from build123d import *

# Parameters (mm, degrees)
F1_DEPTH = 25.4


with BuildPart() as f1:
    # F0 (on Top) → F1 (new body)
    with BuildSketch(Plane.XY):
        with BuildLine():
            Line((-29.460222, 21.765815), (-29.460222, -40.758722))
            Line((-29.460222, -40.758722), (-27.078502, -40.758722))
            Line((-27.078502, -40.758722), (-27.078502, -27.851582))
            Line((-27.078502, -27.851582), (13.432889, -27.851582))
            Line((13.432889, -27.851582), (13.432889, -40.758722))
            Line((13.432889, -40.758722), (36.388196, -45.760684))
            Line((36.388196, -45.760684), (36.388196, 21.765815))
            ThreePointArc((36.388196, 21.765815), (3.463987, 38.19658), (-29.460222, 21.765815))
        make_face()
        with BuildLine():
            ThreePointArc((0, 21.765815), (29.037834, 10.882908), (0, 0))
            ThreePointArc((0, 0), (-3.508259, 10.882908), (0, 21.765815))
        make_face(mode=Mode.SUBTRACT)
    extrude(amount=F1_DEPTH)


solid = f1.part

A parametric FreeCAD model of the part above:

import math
import FreeCAD as App
import Part
import Sketcher

V = App.Vector
Q = App.Units.Quantity

doc = App.newDocument("Part")
params = doc.addObject("Spreadsheet::Sheet", "Params")
for row, (alias, value) in enumerate([
    ("pad1_length", "1 in"),
], start=1):
    params.set(f"A{row}", alias)
    params.set(f"B{row}", "=" + value)
    params.setAlias(f"B{row}", alias)

body = doc.addObject("PartDesign::Body", "Body")

# Sketch on XY plane
sketch1 = doc.addObject("Sketcher::SketchObject", "Sketch")
body.addObject(sketch1)
sketch1.AttachmentSupport = (doc.XY_Plane, [""])
sketch1.MapMode = "FlatFace"
sketch1.addGeometry(Part.LineSegment(V(-29.5, 21.8, 0), V(-29.5, -40.8, 0)), False)
sketch1.addGeometry(Part.LineSegment(V(-29.5, -40.8, 0), V(-27.1, -40.8, 0)), False)
sketch1.addGeometry(Part.LineSegment(V(-27.1, -40.8, 0), V(-27.1, -27.9, 0)), False)
sketch1.addGeometry(Part.LineSegment(V(-27.1, -27.9, 0), V(13.4, -27.9, 0)), False)
sketch1.addGeometry(Part.LineSegment(V(13.4, -27.9, 0), V(13.4, -40.8, 0)), False)
sketch1.addGeometry(Part.LineSegment(V(13.4, -40.8, 0), V(36.4, -45.8, 0)), False)
sketch1.addGeometry(Part.LineSegment(V(36.4, -45.8, 0), V(36.4, 21.8, 0)), False)
sketch1.addGeometry(Part.ArcOfCircle(Part.Circle(V(3.5, -3, 0), V(0, 0, 1), 41.2), math.radians(37), math.radians(143)), False)
sketch1.addGeometry(Part.ArcOfCircle(Part.Circle(V(15.1, 10.9, 0), V(0, 0, 1), 18.6), math.radians(144), math.radians(216)), False)
sketch1.addGeometry(Part.ArcOfCircle(Part.Circle(V(12.5, 10.9, 0), V(0, 0, 1), 16.6), math.radians(-139), math.radians(139)), False)
sketch1.addConstraint(Sketcher.Constraint("Coincident", 0, 2, 1, 1))
sketch1.addConstraint(Sketcher.Constraint("Coincident", 1, 2, 2, 1))
sketch1.addConstraint(Sketcher.Constraint("Coincident", 2, 2, 3, 1))
sketch1.addConstraint(Sketcher.Constraint("Coincident", 3, 2, 4, 1))
sketch1.addConstraint(Sketcher.Constraint("Coincident", 4, 2, 5, 1))
sketch1.addConstraint(Sketcher.Constraint("Coincident", 5, 2, 6, 1))
sketch1.addConstraint(Sketcher.Constraint("Coincident", 6, 2, 7, 1))
sketch1.addConstraint(Sketcher.Constraint("Coincident", 7, 2, 0, 1))
sketch1.addConstraint(Sketcher.Constraint("Coincident", 8, 1, 9, 2))
sketch1.addConstraint(Sketcher.Constraint("Coincident", 9, 1, 8, 2))
sketch1.addConstraint(Sketcher.Constraint("Vertical", 0))
sketch1.addConstraint(Sketcher.Constraint("Horizontal", 1))
sketch1.addConstraint(Sketcher.Constraint("Vertical", 2))
sketch1.addConstraint(Sketcher.Constraint("Horizontal", 3))
sketch1.addConstraint(Sketcher.Constraint("Vertical", 4))
sketch1.addConstraint(Sketcher.Constraint("Vertical", 6))
sketch1.addConstraint(Sketcher.Constraint("Coincident", 9, 1, -1, 1))
sketch1.addConstraint(Sketcher.Constraint("PointOnObject", 8, 1, -2))
sketch1.addConstraint(Sketcher.Constraint("Horizontal", 1, 2, 4, 2))
sketch1.addConstraint(Sketcher.Constraint("Horizontal", 6, 2, 7, 2))
sketch1.addConstraint(Sketcher.Constraint("Horizontal", 7, 2, 8, 1))
sketch1.addConstraint(Sketcher.Constraint("Radius", 7, 41.20239))
sketch1.addConstraint(Sketcher.Constraint("DistanceY", 6, 1, 6, 2, 67.526499))
sketch1.addConstraint(Sketcher.Constraint("Radius", 8, 18.633966))
sketch1.addConstraint(Sketcher.Constraint("Radius", 9, 16.558285))
sketch1.addConstraint(Sketcher.Constraint("DistanceY", 7, 3, 8, 3, Q("0.5467999 in")))
sketch1.addConstraint(Sketcher.Constraint("DistanceX", 1, 1, 1, 2, 2.38172))
sketch1.addConstraint(Sketcher.Constraint("DistanceX", 3, 1, 3, 2, 40.511391))
sketch1.addConstraint(Sketcher.Constraint("DistanceY", 2, 1, 2, 2, 12.90714))
sketch1.addConstraint(Sketcher.Constraint("DistanceY", 5, 2, 3, 2, 17.909102))
sketch1.addConstraint(Sketcher.Constraint("Distance", 5, 23.493951))
sketch1.addConstraint(Sketcher.Constraint("DistanceX", -1, 1, 3, 2, 13.432889))
pad1 = doc.addObject("PartDesign::Pad", "Pad")
body.addObject(pad1)
pad1.Profile = sketch1
pad1.setExpression("Length", "Params.pad1_length")

doc.recompute()
